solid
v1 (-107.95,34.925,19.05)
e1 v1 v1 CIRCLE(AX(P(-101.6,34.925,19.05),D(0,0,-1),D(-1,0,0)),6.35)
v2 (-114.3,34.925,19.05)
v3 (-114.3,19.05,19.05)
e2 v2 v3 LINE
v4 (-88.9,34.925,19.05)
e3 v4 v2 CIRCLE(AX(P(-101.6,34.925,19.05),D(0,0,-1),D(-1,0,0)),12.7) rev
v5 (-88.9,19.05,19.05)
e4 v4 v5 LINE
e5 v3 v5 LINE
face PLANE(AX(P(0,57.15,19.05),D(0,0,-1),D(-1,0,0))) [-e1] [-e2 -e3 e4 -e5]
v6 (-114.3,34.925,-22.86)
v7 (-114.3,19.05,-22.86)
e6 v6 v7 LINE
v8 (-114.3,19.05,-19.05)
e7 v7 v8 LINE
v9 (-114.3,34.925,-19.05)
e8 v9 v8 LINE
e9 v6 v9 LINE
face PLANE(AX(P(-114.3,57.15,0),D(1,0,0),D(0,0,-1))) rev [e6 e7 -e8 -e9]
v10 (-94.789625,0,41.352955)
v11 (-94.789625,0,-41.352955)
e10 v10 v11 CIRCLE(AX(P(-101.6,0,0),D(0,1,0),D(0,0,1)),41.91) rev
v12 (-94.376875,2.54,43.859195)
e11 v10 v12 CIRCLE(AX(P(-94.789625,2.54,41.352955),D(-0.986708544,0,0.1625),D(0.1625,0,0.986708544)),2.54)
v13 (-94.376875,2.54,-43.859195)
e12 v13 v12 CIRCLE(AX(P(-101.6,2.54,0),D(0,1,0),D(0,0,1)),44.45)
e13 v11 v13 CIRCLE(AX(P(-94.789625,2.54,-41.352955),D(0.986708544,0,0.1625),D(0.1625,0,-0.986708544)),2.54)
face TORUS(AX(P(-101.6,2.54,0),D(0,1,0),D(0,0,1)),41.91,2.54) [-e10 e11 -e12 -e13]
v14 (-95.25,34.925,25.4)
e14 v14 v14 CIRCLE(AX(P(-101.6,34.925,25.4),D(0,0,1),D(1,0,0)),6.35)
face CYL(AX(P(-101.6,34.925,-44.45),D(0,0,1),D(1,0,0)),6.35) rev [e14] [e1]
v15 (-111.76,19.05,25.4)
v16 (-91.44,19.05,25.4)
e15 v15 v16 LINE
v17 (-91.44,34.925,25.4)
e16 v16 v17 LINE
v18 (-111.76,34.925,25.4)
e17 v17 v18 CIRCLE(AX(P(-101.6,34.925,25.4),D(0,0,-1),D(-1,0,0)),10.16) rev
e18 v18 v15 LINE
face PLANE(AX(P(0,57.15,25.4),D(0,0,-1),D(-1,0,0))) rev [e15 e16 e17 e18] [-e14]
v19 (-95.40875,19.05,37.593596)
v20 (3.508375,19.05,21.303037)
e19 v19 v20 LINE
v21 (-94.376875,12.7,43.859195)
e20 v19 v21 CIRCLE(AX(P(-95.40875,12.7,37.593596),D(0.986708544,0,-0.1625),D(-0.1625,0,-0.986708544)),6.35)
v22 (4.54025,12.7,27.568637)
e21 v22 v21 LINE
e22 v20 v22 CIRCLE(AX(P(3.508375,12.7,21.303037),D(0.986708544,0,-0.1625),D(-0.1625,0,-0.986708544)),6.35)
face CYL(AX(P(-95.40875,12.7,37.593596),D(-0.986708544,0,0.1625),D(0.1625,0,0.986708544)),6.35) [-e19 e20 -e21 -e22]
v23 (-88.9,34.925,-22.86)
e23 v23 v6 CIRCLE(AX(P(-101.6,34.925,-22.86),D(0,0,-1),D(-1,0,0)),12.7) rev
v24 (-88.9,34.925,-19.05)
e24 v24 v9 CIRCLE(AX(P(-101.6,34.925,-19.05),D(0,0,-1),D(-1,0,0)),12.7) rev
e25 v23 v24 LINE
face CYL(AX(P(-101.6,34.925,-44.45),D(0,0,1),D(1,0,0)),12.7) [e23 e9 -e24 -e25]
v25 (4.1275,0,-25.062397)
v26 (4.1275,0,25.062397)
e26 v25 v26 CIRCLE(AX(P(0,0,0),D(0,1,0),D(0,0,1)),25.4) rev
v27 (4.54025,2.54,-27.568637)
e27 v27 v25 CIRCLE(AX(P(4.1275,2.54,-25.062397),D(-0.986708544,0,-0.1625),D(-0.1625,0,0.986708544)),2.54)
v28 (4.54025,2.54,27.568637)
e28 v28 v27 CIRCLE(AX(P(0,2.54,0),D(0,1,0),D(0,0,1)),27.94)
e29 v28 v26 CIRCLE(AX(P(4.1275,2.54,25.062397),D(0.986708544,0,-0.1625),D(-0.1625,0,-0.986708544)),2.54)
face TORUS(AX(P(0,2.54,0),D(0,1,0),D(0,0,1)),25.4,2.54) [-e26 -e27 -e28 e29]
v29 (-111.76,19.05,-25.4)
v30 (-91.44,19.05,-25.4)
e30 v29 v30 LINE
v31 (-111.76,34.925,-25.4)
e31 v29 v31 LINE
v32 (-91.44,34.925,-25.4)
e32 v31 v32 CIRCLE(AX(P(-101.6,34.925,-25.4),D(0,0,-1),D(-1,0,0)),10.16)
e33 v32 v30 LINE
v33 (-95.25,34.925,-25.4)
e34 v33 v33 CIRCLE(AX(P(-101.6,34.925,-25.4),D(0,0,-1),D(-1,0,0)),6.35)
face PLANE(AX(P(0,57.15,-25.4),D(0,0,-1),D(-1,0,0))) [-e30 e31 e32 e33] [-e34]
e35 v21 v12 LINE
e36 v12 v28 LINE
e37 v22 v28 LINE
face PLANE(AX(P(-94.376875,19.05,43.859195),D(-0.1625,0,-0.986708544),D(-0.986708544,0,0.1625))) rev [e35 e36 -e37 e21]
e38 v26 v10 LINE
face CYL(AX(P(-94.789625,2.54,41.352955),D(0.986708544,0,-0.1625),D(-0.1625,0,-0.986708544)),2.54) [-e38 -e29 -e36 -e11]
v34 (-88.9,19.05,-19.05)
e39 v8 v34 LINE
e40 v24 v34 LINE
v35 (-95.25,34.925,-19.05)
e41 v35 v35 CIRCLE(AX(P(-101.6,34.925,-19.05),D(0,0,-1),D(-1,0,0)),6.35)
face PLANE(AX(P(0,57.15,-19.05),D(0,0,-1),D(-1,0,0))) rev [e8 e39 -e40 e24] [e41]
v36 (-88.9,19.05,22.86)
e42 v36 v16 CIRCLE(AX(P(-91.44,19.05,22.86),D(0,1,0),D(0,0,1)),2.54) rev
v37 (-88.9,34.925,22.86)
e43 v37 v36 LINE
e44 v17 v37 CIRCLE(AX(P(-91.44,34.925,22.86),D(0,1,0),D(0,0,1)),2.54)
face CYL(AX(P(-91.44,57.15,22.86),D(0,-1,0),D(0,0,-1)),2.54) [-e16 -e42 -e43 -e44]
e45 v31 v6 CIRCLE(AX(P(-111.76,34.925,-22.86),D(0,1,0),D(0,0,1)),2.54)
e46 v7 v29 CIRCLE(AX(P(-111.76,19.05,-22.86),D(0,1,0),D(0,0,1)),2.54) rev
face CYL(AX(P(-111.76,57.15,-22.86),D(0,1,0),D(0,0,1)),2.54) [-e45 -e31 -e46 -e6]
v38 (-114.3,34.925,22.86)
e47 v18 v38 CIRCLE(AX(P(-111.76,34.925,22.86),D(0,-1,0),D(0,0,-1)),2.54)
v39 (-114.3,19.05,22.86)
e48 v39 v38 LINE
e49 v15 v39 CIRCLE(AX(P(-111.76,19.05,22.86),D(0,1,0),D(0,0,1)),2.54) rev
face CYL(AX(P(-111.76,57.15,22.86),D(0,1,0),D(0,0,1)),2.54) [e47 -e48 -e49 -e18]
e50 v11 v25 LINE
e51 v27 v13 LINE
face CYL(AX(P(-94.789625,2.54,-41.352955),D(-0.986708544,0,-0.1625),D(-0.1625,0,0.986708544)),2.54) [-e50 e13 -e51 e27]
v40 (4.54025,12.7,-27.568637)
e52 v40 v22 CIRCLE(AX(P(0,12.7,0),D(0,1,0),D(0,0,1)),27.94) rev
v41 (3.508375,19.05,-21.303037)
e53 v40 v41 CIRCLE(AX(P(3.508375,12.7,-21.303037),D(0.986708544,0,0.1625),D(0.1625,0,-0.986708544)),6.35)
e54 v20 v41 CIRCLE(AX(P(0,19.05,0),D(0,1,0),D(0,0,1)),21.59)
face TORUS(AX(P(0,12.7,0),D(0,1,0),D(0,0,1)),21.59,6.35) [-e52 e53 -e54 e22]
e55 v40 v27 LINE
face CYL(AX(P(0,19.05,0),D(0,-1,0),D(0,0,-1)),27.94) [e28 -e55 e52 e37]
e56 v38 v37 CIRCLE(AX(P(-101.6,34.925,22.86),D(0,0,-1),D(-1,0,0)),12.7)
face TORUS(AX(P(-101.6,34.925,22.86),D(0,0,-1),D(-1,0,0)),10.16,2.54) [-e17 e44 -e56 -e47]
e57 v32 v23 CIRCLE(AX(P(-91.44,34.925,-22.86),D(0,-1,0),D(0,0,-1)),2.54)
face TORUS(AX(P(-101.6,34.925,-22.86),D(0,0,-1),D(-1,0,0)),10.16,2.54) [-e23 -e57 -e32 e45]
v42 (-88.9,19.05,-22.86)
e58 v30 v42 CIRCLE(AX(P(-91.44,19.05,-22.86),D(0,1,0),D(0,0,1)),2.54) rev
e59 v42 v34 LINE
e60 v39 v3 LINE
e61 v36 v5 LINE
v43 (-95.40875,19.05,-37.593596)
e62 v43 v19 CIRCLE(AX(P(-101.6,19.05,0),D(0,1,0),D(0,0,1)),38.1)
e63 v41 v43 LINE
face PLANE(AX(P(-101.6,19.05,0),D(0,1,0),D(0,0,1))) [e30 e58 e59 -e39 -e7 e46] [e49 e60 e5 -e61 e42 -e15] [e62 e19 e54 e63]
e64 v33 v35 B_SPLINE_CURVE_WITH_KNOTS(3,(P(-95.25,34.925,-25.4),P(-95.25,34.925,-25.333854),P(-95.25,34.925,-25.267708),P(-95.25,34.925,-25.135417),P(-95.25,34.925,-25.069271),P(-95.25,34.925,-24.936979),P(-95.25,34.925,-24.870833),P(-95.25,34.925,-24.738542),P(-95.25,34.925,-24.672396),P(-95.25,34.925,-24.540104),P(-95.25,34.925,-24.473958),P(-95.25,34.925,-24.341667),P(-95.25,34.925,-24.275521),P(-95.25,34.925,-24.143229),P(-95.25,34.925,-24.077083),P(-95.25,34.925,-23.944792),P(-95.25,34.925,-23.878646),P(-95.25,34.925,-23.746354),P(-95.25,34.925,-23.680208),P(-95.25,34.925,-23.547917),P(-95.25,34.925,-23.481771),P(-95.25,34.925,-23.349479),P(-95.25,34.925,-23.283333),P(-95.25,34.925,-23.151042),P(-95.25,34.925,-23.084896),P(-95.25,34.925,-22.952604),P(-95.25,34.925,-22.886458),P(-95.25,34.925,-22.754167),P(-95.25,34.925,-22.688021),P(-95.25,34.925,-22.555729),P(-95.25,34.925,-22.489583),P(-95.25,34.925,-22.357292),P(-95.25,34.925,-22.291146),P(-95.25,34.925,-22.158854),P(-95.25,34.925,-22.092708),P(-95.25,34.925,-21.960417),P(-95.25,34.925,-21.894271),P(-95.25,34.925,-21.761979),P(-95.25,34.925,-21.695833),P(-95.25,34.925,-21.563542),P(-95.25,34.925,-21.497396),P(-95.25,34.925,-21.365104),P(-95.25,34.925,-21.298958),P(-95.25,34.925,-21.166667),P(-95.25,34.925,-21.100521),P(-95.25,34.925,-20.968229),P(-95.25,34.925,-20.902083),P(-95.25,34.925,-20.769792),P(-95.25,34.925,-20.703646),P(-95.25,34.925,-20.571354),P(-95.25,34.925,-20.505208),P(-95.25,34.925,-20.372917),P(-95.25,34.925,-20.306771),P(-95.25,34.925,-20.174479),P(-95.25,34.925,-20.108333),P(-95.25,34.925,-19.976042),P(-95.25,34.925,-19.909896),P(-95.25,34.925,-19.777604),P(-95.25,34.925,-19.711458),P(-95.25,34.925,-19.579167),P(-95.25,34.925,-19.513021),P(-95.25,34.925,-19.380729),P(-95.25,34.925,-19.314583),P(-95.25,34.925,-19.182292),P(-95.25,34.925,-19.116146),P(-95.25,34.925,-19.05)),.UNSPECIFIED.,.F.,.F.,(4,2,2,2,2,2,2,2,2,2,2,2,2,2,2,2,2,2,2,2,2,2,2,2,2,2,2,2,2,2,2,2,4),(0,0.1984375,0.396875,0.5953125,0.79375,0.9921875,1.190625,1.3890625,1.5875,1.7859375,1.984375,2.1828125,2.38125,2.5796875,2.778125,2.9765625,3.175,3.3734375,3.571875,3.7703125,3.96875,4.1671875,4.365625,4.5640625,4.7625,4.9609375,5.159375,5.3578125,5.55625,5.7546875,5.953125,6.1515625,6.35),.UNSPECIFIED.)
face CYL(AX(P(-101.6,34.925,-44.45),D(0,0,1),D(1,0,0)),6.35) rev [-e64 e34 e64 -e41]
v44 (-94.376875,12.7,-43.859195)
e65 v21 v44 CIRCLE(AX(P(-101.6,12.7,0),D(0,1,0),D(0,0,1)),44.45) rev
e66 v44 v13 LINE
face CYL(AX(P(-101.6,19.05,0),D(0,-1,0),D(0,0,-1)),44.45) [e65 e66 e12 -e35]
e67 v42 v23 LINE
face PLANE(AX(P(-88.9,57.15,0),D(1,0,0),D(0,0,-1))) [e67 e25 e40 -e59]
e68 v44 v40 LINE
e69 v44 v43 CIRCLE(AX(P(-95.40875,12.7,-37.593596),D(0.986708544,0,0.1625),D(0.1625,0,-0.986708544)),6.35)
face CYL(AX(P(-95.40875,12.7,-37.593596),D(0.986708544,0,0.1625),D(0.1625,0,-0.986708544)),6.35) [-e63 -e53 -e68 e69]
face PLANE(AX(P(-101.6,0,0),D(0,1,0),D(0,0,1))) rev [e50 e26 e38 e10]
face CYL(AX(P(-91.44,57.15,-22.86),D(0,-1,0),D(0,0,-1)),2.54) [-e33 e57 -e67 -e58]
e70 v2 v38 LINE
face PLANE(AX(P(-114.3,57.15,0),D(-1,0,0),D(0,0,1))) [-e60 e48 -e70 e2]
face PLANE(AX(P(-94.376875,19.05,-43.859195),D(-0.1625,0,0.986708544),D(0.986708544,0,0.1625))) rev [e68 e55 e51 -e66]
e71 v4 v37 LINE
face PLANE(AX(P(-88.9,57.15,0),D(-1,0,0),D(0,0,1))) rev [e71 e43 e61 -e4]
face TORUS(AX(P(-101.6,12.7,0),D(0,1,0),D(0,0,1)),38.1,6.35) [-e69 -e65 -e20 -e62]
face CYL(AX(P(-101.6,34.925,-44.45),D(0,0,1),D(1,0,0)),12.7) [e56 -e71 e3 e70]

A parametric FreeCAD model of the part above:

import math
import FreeCAD as App
import Part
import Sketcher

V = App.Vector
Q = App.Units.Quantity


def edges_at(feature, points):
    """Names of the edges that pass closest to the given points."""
    edges = feature.Shape.Edges
    near = lambda p: min(range(len(edges)), key=lambda i: edges[i].distToShape(Part.Vertex(*p))[0])
    return sorted({f"Edge{near(p) + 1}" for p in points})


def add_polygon(sketch, points):
    """Adds a closed chain of lines whose ends are joined by coincident constraints."""
    first, n = sketch.GeometryCount, len(points)
    for a, b in zip(points, points[1:] + points[:1]):
        sketch.addGeometry(Part.LineSegment(App.Vector(*a, 0), App.Vector(*b, 0)), False)
    for i in range(n):
        sketch.addConstraint(Sketcher.Constraint("Coincident", first + i, 2, first + (i + 1) % n, 1))

doc = App.newDocument("Part")
params = doc.addObject("Spreadsheet::Sheet", "Params")
for row, (alias, value) in enumerate([
    ("sketch1_radius", "1.1 in"),
    ("sketch1_radius2", "1.75 in"),
    ("pad1_length", "0.75 in"),
    ("sketch2_width", "1 in"),
    ("sketch2_height", "0.25 in"),
    ("pad2_length", "1.5 in"),
    ("sketch3_diameter", "0.5 in"),
    ("sketch3_radius", "0.5 in"),
    ("sketch3_height", "0.875 in"),
    ("fillet_radius", "0.25 in"),
    ("fillet2_radius", "0.1 in"),
    ("fillet3_radius", "0.1 in"),
], start=1):
    params.set(f"A{row}", alias)
    params.set(f"B{row}", "=" + value)
    params.setAlias(f"B{row}", alias)

body = doc.addObject("PartDesign::Body", "Body")

# Sketch on XZ plane
sketch1 = body.newObject("Sketcher::SketchObject", "Sketch")
sketch1.AttachmentSupport = (doc.getObject("XZ_Plane"), [""])
sketch1.MapMode = "FlatFace"
sketch1.addGeometry([
    Part.LineSegment(V(5, -28, 0), V(-94, -44, 0)),
    Part.ArcOfCircle(Part.Circle(V(-102, 0, 0), V(0, 0, 1), 44), math.radians(81), math.radians(279)),
    Part.LineSegment(V(-94, 44, 0), V(5, 28, 0)),
    Part.ArcOfCircle(Part.Circle(V(0, 0, 0), V(0, 0, 1), 28), math.radians(-81), math.radians(81)),
], False)
sketch1.addConstraint([
    Sketcher.Constraint("Tangent", 0, 2, 1, 2),
    Sketcher.Constraint("Tangent", 1, 1, 2, 1),
    Sketcher.Constraint("Tangent", 2, 2, 3, 2),
    Sketcher.Constraint("Tangent", 3, 1, 0, 1),
    Sketcher.Constraint("Coincident", 3, 3, -1, 1),
    Sketcher.Constraint("PointOnObject", 1, 3, -1),
    Sketcher.Constraint("Radius", 3, Q("1.1 in")),
    Sketcher.Constraint("Radius", 1, Q("1.75 in")),
    Sketcher.Constraint("DistanceX", 1, 3, -1, 1, Q("4 in")),
])
sketch1.setExpression("Constraints[6]", "Params.sketch1_radius")
sketch1.setExpression("Constraints[7]", "Params.sketch1_radius2")
pad1 = body.newObject("PartDesign::Pad", "Pad")
pad1.Profile = sketch1
pad1.setExpression("Length", "Params.pad1_length")
pad1.Reversed = True

# Sketch on XZ plane
sketch2 = body.newObject("Sketcher::SketchObject", "Sketch001")
sketch2.AttachmentSupport = (doc.getObject("XZ_Plane"), [""])
sketch2.MapMode = "FlatFace"
sketch2.AttachmentOffset = App.Placement(V(0, 0, -0.75 * 25.4), App.Rotation())
add_polygon(sketch2, [(-114, -25), (-114, -19), (-89, -19), (-89, -25)])  # lines 0-3
add_polygon(sketch2, [(-114, 19), (-114, 25), (-89, 25), (-89, 19)])  # lines 4-7
sketch2.addConstraint([
    Sketcher.Constraint("Vertical", 0),
    Sketcher.Constraint("Horizontal", 1),
    Sketcher.Constraint("Vertical", 2),
    Sketcher.Constraint("Horizontal", 3),
    Sketcher.Constraint("Vertical", 4),
    Sketcher.Constraint("Horizontal", 5),
    Sketcher.Constraint("Vertical", 6),
    Sketcher.Constraint("Horizontal", 7),
    Sketcher.Constraint("Symmetric", 3, 2, 4, 2, -1),
    Sketcher.Constraint("Symmetric", 1, 2, 6, 2, -1),
    Sketcher.Constraint("DistanceX", 1, 1, 1, 2, Q("1 in")),
    Sketcher.Constraint("DistanceY", 2, 2, -1, 1, Q("1 in")),
    Sketcher.Constraint("DistanceY", 0, 1, 0, 2, Q("0.25 in")),
    Sketcher.Constraint("DistanceX", 0, 2, -1, 1, Q("4.5 in")),
])
sketch2.setExpression("Constraints[18]", "Params.sketch2_width")
sketch2.setExpression("Constraints[20]", "Params.sketch2_height")
pad2 = body.newObject("PartDesign::Pad", "Pad001")
pad2.Profile = sketch2
pad2.setExpression("Length", "Params.pad2_length")
pad2.Reversed = True

# Sketch on XY plane
sketch3 = body.newObject("Sketcher::SketchObject", "Sketch002")
sketch3.AttachmentSupport = (doc.getObject("XY_Plane"), [""])
sketch3.MapMode = "FlatFace"
sketch3.AttachmentOffset = App.Placement(V(0, 0, 1 * 25.4), App.Rotation())
sketch3.addGeometry([
    Part.LineSegment(V(-114, 57, 0), V(-114, 35, 0)),  # 0
    Part.ArcOfCircle(Part.Circle(V(-102, 35, 0), V(0, 0, 1), 13), math.radians(0), math.radians(180)),  # 1
    Part.LineSegment(V(-89, 35, 0), V(-89, 57, 0)),  # 2
    Part.LineSegment(V(-89, 57, 0), V(-114, 57, 0)),  # 3
    Part.Circle(V(-102, 35, 0), V(0, 0, 1), 6),  # 4
], False)
sketch3.addConstraint([
    Sketcher.Constraint("Tangent", 0, 2, 1, 2),
    Sketcher.Constraint("Tangent", 1, 1, 2, 1),
    Sketcher.Constraint("Coincident", 2, 2, 3, 1),
    Sketcher.Constraint("Coincident", 3, 2, 0, 1),
    Sketcher.Constraint("Vertical", 0),
    Sketcher.Constraint("Vertical", 2),
    Sketcher.Constraint("Horizontal", 3),
    Sketcher.Constraint("Coincident", 4, 3, 1, 3),
    Sketcher.Constraint("Diameter", 4, Q("0.5 in")),
    Sketcher.Constraint("Radius", 1, Q("0.5 in")),
    Sketcher.Constraint("DistanceX", 1, 3, -1, 1, Q("4 in")),
    Sketcher.Constraint("DistanceY", 0, 2, 0, 1, Q("0.875 in")),
    Sketcher.Constraint("DistanceY", -1, 1, 2, 2, Q("2.25 in")),
])
sketch3.setExpression("Constraints[8]", "Params.sketch3_diameter")
sketch3.setExpression("Constraints[9]", "Params.sketch3_radius")
sketch3.setExpression("Constraints[11]", "Params.sketch3_height")
pocket1 = body.newObject("PartDesign::Pocket", "Pocket")
pocket1.Profile = sketch3
pocket1.Type = "ThroughAll"
doc.recompute()

fillet = body.newObject("PartDesign::Fillet", "Fillet")
fillet.Base = (pocket1, edges_at(pocket1, [
    (27.94, 19.05, 0),
    (-44.918, 19.05, -35.714),
    (-146.05, 19.05, 0),
    (-44.918, 19.05, 35.714),
]))
fillet.setExpression("Radius", "Params.fillet_radius")
doc.recompute()

fillet2 = body.newObject("PartDesign::Fillet", "Fillet001")
fillet2.Base = (fillet, edges_at(fillet, [
    (-44.918, 0, -35.714),
    (27.94, 0, 0),
    (-44.918, 0, 35.714),
    (-146.05, 0, 0),
]))
fillet2.setExpression("Radius", "Params.fillet2_radius")
doc.recompute()

fillet3 = body.newObject("PartDesign::Fillet", "Fillet002")
fillet3.Base = (fillet2, edges_at(fillet2, [
    (-88.9, 26.988, 25.4),
    (-114.3, 26.988, 25.4),
    (-114.3, 26.988, -25.4),
    (-88.9, 26.988, -25.4),
    (-101.6, 47.625, -25.4),
    (-101.6, 47.625, 25.4),
]))
fillet3.setExpression("Radius", "Params.fillet3_radius")

doc.recompute()
